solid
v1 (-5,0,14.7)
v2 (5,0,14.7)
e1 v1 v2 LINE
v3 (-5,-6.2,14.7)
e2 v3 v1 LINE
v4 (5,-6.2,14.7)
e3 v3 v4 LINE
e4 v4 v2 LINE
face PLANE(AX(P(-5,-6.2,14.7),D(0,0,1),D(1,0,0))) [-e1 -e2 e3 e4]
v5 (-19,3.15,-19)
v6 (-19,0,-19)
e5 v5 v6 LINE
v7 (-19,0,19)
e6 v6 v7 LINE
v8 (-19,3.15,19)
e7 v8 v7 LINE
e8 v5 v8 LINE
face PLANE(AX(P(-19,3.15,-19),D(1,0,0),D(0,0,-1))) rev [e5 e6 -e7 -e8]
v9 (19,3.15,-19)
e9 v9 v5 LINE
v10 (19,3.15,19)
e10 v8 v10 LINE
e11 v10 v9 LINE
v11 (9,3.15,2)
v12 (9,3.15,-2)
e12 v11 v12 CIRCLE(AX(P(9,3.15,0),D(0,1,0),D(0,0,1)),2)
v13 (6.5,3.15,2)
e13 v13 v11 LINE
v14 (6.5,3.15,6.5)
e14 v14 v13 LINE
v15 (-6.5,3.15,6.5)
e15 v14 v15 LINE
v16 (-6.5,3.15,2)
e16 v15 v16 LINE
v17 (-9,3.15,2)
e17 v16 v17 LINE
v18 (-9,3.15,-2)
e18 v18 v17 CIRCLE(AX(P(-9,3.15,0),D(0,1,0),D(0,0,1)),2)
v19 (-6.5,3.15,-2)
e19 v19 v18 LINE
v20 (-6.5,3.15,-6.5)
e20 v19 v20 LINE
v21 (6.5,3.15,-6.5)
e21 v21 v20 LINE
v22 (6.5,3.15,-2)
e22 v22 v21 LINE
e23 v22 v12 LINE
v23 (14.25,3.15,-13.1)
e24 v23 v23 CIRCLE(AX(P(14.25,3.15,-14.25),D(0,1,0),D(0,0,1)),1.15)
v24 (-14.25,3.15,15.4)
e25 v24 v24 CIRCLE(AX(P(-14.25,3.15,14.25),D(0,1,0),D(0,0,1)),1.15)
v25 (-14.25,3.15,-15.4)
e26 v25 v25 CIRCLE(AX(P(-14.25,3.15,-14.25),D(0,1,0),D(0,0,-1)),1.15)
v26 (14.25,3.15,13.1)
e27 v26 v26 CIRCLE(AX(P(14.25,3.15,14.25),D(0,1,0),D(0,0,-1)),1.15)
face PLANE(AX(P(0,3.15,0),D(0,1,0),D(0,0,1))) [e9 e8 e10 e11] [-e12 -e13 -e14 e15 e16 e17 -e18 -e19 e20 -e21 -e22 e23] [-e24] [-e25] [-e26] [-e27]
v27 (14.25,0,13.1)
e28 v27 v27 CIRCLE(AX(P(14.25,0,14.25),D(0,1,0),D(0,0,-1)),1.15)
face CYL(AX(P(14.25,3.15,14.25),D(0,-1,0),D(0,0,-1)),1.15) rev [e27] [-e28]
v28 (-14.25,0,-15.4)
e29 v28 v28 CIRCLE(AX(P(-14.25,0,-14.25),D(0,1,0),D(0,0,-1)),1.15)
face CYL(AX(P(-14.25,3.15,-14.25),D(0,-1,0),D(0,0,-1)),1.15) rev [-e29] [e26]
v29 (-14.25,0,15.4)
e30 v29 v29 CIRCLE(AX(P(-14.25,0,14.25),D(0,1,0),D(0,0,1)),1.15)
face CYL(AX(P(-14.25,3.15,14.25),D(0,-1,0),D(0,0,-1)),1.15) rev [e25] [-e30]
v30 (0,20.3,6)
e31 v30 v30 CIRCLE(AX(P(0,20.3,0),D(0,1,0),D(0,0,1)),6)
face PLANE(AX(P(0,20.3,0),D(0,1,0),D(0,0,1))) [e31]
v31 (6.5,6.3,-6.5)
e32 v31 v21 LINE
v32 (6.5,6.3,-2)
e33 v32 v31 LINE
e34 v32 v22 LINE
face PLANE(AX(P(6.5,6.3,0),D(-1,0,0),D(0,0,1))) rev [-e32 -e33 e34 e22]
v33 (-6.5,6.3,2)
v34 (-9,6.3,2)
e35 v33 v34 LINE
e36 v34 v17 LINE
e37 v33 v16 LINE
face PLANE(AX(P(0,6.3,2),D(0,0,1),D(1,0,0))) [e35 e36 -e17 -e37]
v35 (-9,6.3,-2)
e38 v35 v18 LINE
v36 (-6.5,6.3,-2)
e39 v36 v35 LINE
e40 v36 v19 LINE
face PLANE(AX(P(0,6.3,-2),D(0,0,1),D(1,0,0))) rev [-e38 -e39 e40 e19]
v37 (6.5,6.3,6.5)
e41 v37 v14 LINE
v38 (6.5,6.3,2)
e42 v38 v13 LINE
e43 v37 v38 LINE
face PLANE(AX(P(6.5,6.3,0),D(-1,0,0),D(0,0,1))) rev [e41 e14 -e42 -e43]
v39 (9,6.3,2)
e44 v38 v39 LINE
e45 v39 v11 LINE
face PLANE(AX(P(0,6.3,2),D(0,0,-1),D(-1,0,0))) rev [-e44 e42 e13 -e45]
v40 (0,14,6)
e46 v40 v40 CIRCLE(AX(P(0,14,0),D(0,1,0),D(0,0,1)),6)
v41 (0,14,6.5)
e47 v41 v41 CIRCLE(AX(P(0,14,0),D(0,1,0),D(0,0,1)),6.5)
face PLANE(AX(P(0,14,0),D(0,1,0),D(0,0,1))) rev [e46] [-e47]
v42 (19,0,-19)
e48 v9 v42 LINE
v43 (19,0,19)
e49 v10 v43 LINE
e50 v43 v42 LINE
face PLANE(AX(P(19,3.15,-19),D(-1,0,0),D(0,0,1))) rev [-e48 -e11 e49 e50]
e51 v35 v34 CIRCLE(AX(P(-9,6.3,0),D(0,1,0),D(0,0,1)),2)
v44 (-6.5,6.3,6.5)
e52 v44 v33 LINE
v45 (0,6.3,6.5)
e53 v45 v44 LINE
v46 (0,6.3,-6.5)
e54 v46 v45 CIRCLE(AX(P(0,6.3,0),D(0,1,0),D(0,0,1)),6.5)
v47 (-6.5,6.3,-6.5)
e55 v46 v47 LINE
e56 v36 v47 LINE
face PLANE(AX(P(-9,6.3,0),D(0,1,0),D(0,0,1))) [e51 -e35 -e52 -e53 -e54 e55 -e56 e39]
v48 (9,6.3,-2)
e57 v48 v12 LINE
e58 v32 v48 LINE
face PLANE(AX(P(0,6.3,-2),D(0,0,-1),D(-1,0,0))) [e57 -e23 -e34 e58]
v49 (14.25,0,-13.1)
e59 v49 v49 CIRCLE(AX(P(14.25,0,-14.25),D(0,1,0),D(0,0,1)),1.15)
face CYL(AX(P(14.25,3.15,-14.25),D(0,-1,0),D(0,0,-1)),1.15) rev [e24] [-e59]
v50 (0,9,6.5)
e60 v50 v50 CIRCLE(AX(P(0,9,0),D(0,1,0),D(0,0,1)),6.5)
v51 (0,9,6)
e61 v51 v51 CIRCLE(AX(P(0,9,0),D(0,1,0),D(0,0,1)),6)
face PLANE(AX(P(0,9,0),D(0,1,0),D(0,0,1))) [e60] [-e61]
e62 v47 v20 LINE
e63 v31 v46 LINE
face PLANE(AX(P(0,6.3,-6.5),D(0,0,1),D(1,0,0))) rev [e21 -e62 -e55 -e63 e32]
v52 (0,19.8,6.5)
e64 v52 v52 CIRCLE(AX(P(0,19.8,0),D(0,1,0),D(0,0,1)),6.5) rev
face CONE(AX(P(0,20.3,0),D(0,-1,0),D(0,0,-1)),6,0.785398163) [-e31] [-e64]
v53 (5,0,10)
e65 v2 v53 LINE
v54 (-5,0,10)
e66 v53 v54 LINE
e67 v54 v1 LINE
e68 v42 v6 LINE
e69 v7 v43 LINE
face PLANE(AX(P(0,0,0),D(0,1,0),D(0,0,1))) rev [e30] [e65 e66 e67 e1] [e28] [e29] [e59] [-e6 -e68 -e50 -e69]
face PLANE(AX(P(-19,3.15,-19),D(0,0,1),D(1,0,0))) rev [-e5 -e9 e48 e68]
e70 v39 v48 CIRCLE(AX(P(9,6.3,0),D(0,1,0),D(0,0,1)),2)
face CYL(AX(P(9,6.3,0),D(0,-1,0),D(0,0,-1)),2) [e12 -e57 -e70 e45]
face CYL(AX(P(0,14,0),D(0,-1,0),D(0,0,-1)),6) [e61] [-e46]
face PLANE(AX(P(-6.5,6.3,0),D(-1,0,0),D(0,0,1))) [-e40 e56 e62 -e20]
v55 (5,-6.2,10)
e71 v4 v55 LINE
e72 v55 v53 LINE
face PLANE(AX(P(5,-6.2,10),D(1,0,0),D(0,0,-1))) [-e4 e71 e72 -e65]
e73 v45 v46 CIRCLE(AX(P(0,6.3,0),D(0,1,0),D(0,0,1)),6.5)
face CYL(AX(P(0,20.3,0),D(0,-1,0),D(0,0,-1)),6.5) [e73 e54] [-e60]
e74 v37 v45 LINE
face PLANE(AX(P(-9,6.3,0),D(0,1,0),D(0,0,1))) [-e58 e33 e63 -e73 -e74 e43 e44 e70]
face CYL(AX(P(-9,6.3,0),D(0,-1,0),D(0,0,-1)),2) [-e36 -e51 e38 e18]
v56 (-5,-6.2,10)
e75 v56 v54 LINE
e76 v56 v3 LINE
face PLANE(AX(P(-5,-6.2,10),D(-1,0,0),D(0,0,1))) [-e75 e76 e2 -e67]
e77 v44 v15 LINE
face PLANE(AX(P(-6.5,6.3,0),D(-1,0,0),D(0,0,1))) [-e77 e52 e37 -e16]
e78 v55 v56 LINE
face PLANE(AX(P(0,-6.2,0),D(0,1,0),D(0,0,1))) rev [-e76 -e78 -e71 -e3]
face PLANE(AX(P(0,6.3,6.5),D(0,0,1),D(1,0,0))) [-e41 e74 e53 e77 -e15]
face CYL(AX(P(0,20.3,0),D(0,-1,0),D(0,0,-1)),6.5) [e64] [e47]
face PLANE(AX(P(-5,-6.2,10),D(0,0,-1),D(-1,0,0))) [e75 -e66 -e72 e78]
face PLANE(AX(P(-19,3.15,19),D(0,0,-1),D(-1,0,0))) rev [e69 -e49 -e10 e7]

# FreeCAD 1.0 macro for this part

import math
import FreeCAD as App
import Part
import Sketcher

V = App.Vector
Q = App.Units.Quantity


def edges_at(feature, points):
    """Names of the edges that pass closest to the given points."""
    edges = feature.Shape.Edges
    near = lambda p: min(range(len(edges)), key=lambda i: edges[i].distToShape(Part.Vertex(*p))[0])
    return sorted({f"Edge{near(p) + 1}" for p in points})

doc = App.newDocument("Part")
body = doc.addObject("PartDesign::Body", "Body")

# Sketch on XZ plane
sketch1 = body.newObject("Sketcher::SketchObject", "Sketch")
sketch1.AttachmentSupport = (doc.getObject("XZ_Plane"), [""])
sketch1.MapMode = "FlatFace"
sketch1.addGeometry(Part.LineSegment(V(-19, -19, 0), V(-19, 19, 0)), False)
sketch1.addGeometry(Part.LineSegment(V(-19, 19, 0), V(19, 19, 0)), False)
sketch1.addGeometry(Part.LineSegment(V(19, 19, 0), V(19, -19, 0)), False)
sketch1.addGeometry(Part.LineSegment(V(19, -19, 0), V(-19, -19, 0)), False)
sketch1.addGeometry(Part.Circle(V(-14.25, 14.25, 0), V(0, 0, 1), 1.15), False)
sketch1.addGeometry(Part.Circle(V(14.25, 14.25, 0), V(0, 0, 1), 1.15), False)
sketch1.addGeometry(Part.Circle(V(-14.25, -14.25, 0), V(0, 0, 1), 1.15), False)
sketch1.addGeometry(Part.Circle(V(14.25, -14.25, 0), V(0, 0, 1), 1.15), False)
sketch1.addConstraint(Sketcher.Constraint("Coincident", 0, 2, 1, 1))
sketch1.addConstraint(Sketcher.Constraint("Coincident", 1, 2, 2, 1))
sketch1.addConstraint(Sketcher.Constraint("Coincident", 2, 2, 3, 1))
sketch1.addConstraint(Sketcher.Constraint("Coincident", 3, 2, 0, 1))
sketch1.addConstraint(Sketcher.Constraint("Vertical", 0))
sketch1.addConstraint(Sketcher.Constraint("Horizontal", 1))
sketch1.addConstraint(Sketcher.Constraint("Vertical", 2))
sketch1.addConstraint(Sketcher.Constraint("Horizontal", 3))
sketch1.addConstraint(Sketcher.Constraint("Equal", 4, 5))
sketch1.addConstraint(Sketcher.Constraint("Equal", 5, 6))
sketch1.addConstraint(Sketcher.Constraint("Equal", 6, 7))
sketch1.addConstraint(Sketcher.Constraint("Symmetric", 5, 3, 6, 3, -1, 1))
sketch1.addConstraint(Sketcher.Constraint("Symmetric", 4, 3, 7, 3, -1, 1))
sketch1.addConstraint(Sketcher.Constraint("Symmetric", 0, 2, 2, 2, -1, 1))
sketch1.addConstraint(Sketcher.Constraint("Symmetric", 4, 3, 5, 3, -2))
sketch1.addConstraint(Sketcher.Constraint("Equal", 3, 0))
sketch1.addConstraint(Sketcher.Constraint("Diameter", 4, Q("2.3 mm")))
sketch1.addConstraint(Sketcher.Constraint("DistanceX", 1, 1, 1, 2, Q("38 mm")))
sketch1.addConstraint(Sketcher.Constraint("DistanceX", 4, 3, 5, 3, Q("28.5 mm")))
sketch1.addConstraint(Sketcher.Constraint("DistanceY", 6, 3, 4, 3, Q("28.5 mm")))
pad1 = body.newObject("PartDesign::Pad", "Pad")
pad1.Profile = sketch1
pad1.Length = 3.15
pad1.Reversed = True

# Sketch on XZ plane
sketch2 = body.newObject("Sketcher::SketchObject", "Sketch001")
sketch2.AttachmentSupport = (doc.getObject("XZ_Plane"), [""])
sketch2.MapMode = "FlatFace"
sketch2.AttachmentOffset = App.Placement(V(0, 0, -3.15), App.Rotation())
sketch2.addGeometry(Part.LineSegment(V(-6.5, -2, 0), V(-9, -2, 0)), False)
sketch2.addGeometry(Part.ArcOfCircle(Part.Circle(V(-9, 0, 0), V(0, 0, 1), 2), math.radians(90), math.radians(270)), False)
sketch2.addGeometry(Part.LineSegment(V(-9, 2, 0), V(-6.5, 2, 0)), False)
sketch2.addGeometry(Part.LineSegment(V(-6.5, 2, 0), V(-6.5, 6.5, 0)), False)
sketch2.addGeometry(Part.LineSegment(V(-6.5, 6.5, 0), V(6.5, 6.5, 0)), False)
sketch2.addGeometry(Part.LineSegment(V(6.5, 6.5, 0), V(6.5, 2, 0)), False)
sketch2.addGeometry(Part.LineSegment(V(6.5, 2, 0), V(9, 2, 0)), False)
sketch2.addGeometry(Part.ArcOfCircle(Part.Circle(V(9, 0, 0), V(0, 0, 1), 2), math.radians(-90), math.radians(90)), False)
sketch2.addGeometry(Part.LineSegment(V(9, -2, 0), V(6.5, -2, 0)), False)
sketch2.addGeometry(Part.LineSegment(V(6.5, -2, 0), V(6.5, -6.5, 0)), False)
sketch2.addGeometry(Part.LineSegment(V(6.5, -6.5, 0), V(-6.5, -6.5, 0)), False)
sketch2.addGeometry(Part.LineSegment(V(-6.5, -6.5, 0), V(-6.5, -2, 0)), False)
sketch2.addConstraint(Sketcher.Constraint("Tangent", 0, 2, 1, 2))
sketch2.addConstraint(Sketcher.Constraint("Tangent", 1, 1, 2, 1))
sketch2.addConstraint(Sketcher.Constraint("Coincident", 2, 2, 3, 1))
sketch2.addConstraint(Sketcher.Constraint("Coincident", 3, 2, 4, 1))
sketch2.addConstraint(Sketcher.Constraint("Coincident", 4, 2, 5, 1))
sketch2.addConstraint(Sketcher.Constraint("Coincident", 5, 2, 6, 1))
sketch2.addConstraint(Sketcher.Constraint("Tangent", 6, 2, 7, 2))
sketch2.addConstraint(Sketcher.Constraint("Tangent", 7, 1, 8, 1))
sketch2.addConstraint(Sketcher.Constraint("Coincident", 8, 2, 9, 1))
sketch2.addConstraint(Sketcher.Constraint("Coincident", 9, 2, 10, 1))
sketch2.addConstraint(Sketcher.Constraint("Coincident", 10, 2, 11, 1))
sketch2.addConstraint(Sketcher.Constraint("Coincident", 11, 2, 0, 1))
sketch2.addConstraint(Sketcher.Constraint("Horizontal", 0))
sketch2.addConstraint(Sketcher.Constraint("Horizontal", 2))
sketch2.addConstraint(Sketcher.Constraint("Vertical", 3))
sketch2.addConstraint(Sketcher.Constraint("Horizontal", 4))
sketch2.addConstraint(Sketcher.Constraint("Vertical", 5))
sketch2.addConstraint(Sketcher.Constraint("Horizontal", 6))
sketch2.addConstraint(Sketcher.Constraint("Horizontal", 8))
sketch2.addConstraint(Sketcher.Constraint("Vertical", 9))
sketch2.addConstraint(Sketcher.Constraint("Horizontal", 10))
sketch2.addConstraint(Sketcher.Constraint("Vertical", 11))
sketch2.addConstraint(Sketcher.Constraint("Equal", 1, 7))
sketch2.addConstraint(Sketcher.Constraint("Symmetric", 1, 3, 7, 3, -1, 1))
sketch2.addConstraint(Sketcher.Constraint("Symmetric", 3, 2, 9, 2, -1, 1))
sketch2.addConstraint(Sketcher.Constraint("Symmetric", 2, 2, 5, 2, -2))
sketch2.addConstraint(Sketcher.Constraint("Vertical", 3, 2, 10, 2))
sketch2.addConstraint(Sketcher.Constraint("Radius", 1, Q("2 mm")))
sketch2.addConstraint(Sketcher.Constraint("DistanceX", 4, 1, 4, 2, Q("13 mm")))
sketch2.addConstraint(Sketcher.Constraint("DistanceX", 0, 2, 0, 1, Q("2.5 mm")))
sketch2.addConstraint(Sketcher.Constraint("DistanceY", 3, 1, 3, 2, Q("4.5 mm")))
pad2 = body.newObject("PartDesign::Pad", "Pad001")
pad2.Profile = sketch2
pad2.Length = 3.15
pad2.Reversed = True

# Sketch on XZ plane
sketch3 = body.newObject("Sketcher::SketchObject", "Sketch002")
sketch3.AttachmentSupport = (doc.getObject("XZ_Plane"), [""])
sketch3.MapMode = "FlatFace"
sketch3.AttachmentOffset = App.Placement(V(0, 0, -6.3), App.Rotation())
sketch3.addGeometry(Part.Circle(V(0, 0, 0), V(0, 0, 1), 6.5), False)
sketch3.addConstraint(Sketcher.Constraint("Coincident", 0, 3, -1, 1))
sketch3.addConstraint(Sketcher.Constraint("Diameter", 0, Q("13 mm")))
pad3 = body.newObject("PartDesign::Pad", "Pad002")
pad3.Profile = sketch3
pad3.Length = 14
pad3.Reversed = True

# Sketch on XZ plane
sketch4 = body.newObject("Sketcher::SketchObject", "Sketch003")
sketch4.AttachmentSupport = (doc.getObject("XZ_Plane"), [""])
sketch4.MapMode = "FlatFace"
sketch4.AttachmentOffset = App.Placement(V(0, 0, -9), App.Rotation())
sketch4.addGeometry(Part.Circle(V(0, 0, 0), V(0, 0, 1), 32.561017), False)
sketch4.addGeometry(Part.Circle(V(0, 0, 0), V(0, 0, 1), 6), False)
sketch4.addConstraint(Sketcher.Constraint("Coincident", 0, 3, -1, 1))
sketch4.addConstraint(Sketcher.Constraint("Coincident", 1, 3, -1, 1))
sketch4.addConstraint(Sketcher.Constraint("Diameter", 1, Q("12 mm")))
sketch4.addConstraint(Sketcher.Constraint("Diameter", 0, Q("65.122034 mm")))
pocket1 = body.newObject("PartDesign::Pocket", "Pocket")
pocket1.Profile = sketch4
pocket1.Length = 5

# Sketch on XZ plane
sketch5 = body.newObject("Sketcher::SketchObject", "Sketch004")
sketch5.AttachmentSupport = (doc.getObject("XZ_Plane"), [""])
sketch5.MapMode = "FlatFace"
sketch5.addGeometry(Part.LineSegment(V(-5, 10, 0), V(-5, 14.7, 0)), False)
sketch5.addGeometry(Part.LineSegment(V(-5, 14.7, 0), V(5, 14.7, 0)), False)
sketch5.addGeometry(Part.LineSegment(V(5, 14.7, 0), V(5, 10, 0)), False)
sketch5.addGeometry(Part.LineSegment(V(5, 10, 0), V(-5, 10, 0)), False)
sketch5.addConstraint(Sketcher.Constraint("Coincident", 0, 2, 1, 1))
sketch5.addConstraint(Sketcher.Constraint("Coincident", 1, 2, 2, 1))
sketch5.addConstraint(Sketcher.Constraint("Coincident", 2, 2, 3, 1))
sketch5.addConstraint(Sketcher.Constraint("Coincident", 3, 2, 0, 1))
sketch5.addConstraint(Sketcher.Constraint("Vertical", 0))
sketch5.addConstraint(Sketcher.Constraint("Horizontal", 1))
sketch5.addConstraint(Sketcher.Constraint("Vertical", 2))
sketch5.addConstraint(Sketcher.Constraint("Horizontal", 3))
sketch5.addConstraint(Sketcher.Constraint("DistanceX", 1, 1, 1, 2, Q("10 mm")))
sketch5.addConstraint(Sketcher.Constraint("DistanceY", 0, 1, 0, 2, Q("4.7 mm")))
sketch5.addConstraint(Sketcher.Constraint("DistanceX", 0, 2, -1, 1, Q("5 mm")))
sketch5.addConstraint(Sketcher.Constraint("DistanceY", -1, 1, 2, 2, Q("10 mm")))
pad4 = body.newObject("PartDesign::Pad", "Pad003")
pad4.Profile = sketch5
pad4.Length = 6.2
doc.recompute()

chamfer = body.newObject("PartDesign::Chamfer", "Chamfer")
chamfer.Base = (pad4, edges_at(pad4, [(-6.5, 20.3, 0)]))
chamfer.Size = 0.5

doc.recompute()
